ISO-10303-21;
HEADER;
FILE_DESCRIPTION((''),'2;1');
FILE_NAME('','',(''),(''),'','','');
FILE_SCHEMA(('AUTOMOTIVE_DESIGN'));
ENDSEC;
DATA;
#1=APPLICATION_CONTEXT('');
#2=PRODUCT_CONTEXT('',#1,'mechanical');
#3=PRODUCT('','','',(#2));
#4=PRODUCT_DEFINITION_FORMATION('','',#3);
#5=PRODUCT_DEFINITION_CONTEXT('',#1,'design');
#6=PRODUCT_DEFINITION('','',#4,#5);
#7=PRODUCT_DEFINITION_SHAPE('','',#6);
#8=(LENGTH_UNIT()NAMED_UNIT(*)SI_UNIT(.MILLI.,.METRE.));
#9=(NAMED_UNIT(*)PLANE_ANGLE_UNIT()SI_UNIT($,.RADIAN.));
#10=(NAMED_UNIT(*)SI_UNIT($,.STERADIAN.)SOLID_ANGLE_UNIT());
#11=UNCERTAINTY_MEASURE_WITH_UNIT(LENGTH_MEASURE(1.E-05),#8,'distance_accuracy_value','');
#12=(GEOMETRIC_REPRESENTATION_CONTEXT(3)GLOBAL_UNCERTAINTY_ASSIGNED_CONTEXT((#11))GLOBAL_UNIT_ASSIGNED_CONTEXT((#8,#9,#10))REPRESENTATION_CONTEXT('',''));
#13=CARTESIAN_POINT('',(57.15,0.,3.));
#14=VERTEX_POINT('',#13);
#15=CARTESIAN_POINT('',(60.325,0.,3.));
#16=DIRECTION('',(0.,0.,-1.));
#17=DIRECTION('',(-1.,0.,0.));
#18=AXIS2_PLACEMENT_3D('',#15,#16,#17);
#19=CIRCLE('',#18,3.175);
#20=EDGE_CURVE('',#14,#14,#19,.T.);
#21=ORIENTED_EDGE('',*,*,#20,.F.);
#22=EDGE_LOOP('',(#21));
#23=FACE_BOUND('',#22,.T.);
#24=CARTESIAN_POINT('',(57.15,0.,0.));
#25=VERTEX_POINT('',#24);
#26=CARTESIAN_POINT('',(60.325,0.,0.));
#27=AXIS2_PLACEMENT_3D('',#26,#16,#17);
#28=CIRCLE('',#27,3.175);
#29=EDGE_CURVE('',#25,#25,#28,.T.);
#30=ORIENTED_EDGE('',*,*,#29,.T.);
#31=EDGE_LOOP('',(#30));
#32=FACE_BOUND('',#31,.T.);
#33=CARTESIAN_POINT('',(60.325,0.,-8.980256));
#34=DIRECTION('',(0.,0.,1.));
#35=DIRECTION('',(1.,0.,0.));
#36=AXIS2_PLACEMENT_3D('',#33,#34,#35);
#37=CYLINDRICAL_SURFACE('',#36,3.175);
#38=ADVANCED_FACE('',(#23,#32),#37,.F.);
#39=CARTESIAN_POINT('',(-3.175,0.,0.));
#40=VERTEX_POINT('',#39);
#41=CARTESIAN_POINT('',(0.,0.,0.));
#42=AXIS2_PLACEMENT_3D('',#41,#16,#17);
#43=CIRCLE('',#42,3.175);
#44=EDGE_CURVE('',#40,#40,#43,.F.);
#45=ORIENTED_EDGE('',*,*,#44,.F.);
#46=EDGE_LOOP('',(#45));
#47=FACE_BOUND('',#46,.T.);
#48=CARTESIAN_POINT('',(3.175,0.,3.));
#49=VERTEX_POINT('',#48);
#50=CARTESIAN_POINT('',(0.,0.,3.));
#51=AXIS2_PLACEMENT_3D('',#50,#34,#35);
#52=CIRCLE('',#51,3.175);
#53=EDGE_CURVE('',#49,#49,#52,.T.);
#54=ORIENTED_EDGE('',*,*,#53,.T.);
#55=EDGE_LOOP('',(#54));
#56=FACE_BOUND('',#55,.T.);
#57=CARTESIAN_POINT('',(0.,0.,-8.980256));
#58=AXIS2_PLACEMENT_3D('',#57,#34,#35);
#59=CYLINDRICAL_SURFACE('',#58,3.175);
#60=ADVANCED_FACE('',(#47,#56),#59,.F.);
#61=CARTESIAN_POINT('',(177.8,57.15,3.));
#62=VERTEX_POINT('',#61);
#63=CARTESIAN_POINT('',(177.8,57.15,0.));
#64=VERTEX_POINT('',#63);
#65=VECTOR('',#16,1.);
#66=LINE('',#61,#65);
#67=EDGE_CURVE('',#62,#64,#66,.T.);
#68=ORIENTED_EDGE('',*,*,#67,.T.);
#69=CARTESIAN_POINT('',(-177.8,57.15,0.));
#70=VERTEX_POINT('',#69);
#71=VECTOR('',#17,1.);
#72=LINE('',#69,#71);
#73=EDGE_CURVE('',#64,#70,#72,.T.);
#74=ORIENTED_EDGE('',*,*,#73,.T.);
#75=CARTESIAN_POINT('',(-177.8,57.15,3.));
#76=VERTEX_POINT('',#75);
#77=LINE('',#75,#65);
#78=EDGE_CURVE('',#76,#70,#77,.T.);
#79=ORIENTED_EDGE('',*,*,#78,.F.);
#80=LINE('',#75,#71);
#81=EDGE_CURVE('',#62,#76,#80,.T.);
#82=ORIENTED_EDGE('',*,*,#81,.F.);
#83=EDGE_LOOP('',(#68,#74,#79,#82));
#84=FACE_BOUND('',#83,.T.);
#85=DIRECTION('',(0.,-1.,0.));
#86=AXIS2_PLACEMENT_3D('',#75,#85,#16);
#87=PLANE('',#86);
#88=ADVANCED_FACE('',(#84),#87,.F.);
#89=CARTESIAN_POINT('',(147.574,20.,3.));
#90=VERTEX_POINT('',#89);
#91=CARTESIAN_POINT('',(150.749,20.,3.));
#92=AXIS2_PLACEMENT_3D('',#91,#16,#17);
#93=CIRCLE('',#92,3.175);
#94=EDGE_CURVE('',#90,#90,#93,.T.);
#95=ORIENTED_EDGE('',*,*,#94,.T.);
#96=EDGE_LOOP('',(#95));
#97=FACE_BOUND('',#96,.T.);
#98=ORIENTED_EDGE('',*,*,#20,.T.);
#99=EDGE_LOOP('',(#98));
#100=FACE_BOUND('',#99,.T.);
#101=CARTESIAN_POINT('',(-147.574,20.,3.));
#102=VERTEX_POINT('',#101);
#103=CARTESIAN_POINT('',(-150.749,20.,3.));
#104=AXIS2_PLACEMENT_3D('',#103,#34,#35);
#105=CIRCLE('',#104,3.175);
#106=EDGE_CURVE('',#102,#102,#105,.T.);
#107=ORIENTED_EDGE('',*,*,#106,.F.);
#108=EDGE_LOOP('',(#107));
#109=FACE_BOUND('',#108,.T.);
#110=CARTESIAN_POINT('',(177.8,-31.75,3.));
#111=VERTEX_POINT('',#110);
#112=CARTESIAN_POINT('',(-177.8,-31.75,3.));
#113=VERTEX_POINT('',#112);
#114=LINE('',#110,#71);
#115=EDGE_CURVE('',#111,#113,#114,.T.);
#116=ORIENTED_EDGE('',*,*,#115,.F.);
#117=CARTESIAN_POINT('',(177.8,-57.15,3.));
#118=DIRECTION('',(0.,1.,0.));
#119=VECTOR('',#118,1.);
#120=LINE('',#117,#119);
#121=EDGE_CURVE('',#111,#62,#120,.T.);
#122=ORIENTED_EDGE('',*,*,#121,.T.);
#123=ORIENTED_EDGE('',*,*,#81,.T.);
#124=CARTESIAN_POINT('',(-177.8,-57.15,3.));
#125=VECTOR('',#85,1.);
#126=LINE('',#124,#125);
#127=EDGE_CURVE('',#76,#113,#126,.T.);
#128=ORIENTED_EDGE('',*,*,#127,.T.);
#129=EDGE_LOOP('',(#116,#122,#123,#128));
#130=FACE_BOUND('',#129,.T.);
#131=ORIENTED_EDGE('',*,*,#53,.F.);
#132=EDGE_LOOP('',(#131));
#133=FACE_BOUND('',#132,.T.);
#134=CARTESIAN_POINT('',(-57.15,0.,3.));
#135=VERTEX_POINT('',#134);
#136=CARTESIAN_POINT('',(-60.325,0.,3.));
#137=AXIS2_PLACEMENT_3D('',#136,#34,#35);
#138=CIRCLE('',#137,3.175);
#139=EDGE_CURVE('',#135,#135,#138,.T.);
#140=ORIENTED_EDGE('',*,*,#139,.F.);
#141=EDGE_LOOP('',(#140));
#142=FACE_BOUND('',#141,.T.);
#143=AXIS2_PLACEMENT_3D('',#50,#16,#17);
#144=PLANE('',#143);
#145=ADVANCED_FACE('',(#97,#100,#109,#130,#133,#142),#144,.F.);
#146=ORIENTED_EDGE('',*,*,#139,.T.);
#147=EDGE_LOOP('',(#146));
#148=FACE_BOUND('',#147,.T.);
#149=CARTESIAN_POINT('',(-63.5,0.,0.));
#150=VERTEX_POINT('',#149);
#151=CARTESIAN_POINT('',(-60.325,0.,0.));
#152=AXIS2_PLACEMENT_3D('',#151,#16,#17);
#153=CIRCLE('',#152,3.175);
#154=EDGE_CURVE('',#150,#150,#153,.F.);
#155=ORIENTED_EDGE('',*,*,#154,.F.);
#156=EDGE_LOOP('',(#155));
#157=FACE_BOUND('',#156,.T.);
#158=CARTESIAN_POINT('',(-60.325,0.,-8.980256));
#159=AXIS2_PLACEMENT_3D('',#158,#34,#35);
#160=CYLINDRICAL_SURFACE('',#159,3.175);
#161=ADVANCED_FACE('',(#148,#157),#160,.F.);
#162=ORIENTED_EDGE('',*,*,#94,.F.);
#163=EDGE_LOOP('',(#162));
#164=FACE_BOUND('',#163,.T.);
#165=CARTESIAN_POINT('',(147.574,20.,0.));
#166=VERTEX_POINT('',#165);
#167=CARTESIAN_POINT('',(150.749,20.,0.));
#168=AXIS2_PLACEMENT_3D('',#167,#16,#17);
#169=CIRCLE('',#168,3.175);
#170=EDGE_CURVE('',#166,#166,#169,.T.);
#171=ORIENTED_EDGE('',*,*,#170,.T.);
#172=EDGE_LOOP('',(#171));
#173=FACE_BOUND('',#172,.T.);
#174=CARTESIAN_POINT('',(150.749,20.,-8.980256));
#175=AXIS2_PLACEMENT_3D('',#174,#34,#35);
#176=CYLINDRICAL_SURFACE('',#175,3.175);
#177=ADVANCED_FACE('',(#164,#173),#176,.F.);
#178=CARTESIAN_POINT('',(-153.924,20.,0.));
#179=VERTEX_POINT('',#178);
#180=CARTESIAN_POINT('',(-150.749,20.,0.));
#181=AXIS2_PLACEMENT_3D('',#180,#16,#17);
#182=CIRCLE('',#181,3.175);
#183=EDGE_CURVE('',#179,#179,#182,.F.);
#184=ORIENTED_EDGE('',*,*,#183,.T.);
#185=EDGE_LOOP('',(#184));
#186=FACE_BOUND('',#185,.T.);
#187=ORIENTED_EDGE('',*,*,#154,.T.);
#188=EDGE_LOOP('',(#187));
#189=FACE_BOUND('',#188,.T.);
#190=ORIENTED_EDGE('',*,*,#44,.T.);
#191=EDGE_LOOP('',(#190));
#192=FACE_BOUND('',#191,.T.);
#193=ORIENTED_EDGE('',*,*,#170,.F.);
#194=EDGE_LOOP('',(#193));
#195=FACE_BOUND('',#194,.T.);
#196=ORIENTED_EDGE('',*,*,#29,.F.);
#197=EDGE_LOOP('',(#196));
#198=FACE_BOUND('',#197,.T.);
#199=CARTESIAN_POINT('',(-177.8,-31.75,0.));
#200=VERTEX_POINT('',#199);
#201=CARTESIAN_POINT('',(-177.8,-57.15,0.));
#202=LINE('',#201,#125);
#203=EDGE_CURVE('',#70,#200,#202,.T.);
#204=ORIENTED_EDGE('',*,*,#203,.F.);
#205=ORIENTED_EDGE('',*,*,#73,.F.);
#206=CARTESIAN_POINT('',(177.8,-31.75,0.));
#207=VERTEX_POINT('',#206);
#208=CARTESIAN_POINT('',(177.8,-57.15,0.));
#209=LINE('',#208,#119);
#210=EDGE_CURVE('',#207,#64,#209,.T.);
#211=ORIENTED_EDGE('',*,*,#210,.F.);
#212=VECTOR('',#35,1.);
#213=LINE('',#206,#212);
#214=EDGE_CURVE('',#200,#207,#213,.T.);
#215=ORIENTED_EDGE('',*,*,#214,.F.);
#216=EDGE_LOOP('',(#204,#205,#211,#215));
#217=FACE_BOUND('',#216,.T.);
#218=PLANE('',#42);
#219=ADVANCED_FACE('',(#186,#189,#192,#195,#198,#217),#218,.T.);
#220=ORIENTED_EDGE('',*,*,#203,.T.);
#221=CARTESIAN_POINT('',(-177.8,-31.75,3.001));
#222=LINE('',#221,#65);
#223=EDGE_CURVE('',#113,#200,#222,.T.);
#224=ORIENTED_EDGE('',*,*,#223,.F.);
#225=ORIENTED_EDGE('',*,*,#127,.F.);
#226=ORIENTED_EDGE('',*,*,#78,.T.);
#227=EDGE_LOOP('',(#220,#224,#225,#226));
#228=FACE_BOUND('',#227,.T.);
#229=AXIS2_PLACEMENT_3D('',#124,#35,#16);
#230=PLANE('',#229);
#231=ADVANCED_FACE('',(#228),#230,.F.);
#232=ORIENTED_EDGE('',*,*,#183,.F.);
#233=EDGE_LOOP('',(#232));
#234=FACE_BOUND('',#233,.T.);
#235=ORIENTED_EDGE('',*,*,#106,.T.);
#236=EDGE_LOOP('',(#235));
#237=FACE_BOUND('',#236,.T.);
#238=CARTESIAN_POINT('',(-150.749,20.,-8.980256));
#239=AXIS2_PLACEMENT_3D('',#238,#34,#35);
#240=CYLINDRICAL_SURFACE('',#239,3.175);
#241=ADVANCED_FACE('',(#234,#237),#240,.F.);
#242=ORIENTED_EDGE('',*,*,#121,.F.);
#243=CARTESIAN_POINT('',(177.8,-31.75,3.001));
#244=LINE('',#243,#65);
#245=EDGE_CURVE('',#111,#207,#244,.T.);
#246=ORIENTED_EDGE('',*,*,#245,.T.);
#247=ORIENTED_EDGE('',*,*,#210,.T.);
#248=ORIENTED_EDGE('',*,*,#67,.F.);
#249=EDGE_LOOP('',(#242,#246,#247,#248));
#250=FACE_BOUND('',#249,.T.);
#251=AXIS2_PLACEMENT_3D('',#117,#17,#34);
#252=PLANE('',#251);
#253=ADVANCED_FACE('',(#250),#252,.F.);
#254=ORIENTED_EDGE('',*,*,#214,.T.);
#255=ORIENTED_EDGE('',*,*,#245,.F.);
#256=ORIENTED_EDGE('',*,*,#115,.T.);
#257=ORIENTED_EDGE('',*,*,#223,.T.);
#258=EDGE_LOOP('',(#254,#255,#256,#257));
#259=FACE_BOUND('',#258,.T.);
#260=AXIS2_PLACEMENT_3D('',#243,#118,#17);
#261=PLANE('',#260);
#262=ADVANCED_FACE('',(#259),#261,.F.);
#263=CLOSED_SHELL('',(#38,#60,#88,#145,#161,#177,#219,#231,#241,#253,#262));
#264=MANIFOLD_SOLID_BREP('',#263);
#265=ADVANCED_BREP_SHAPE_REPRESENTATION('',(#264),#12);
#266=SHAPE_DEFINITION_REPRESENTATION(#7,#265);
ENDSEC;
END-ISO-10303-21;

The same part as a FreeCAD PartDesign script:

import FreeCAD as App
import Part
import Sketcher
from FreeCAD import Vector
Q = App.Units.Quantity

doc = App.newDocument("Part")
body = doc.addObject("PartDesign::Body", "Body")

# Sketch on XY plane
sketch1 = body.newObject("Sketcher::SketchObject", "Sketch")
sketch1.AttachmentSupport = (doc.getObject("XY_Plane"), [""])
sketch1.MapMode = "FlatFace"
sketch1.addGeometry(Part.LineSegment(Vector(-177.8, 57.15, 0), Vector(-177.8, -57.15, 0)), False)
sketch1.addGeometry(Part.LineSegment(Vector(-177.8, -57.15, 0), Vector(177.8, -57.15, 0)), False)
sketch1.addGeometry(Part.LineSegment(Vector(177.8, -57.15, 0), Vector(177.8, 57.15, 0)), False)
sketch1.addGeometry(Part.LineSegment(Vector(177.8, 57.15, 0), Vector(-177.8, 57.15, 0)), False)
sketch1.addConstraint(Sketcher.Constraint("Coincident", 0, 2, 1, 1))
sketch1.addConstraint(Sketcher.Constraint("Coincident", 1, 2, 2, 1))
sketch1.addConstraint(Sketcher.Constraint("Coincident", 2, 2, 3, 1))
sketch1.addConstraint(Sketcher.Constraint("Coincident", 3, 2, 0, 1))
sketch1.addConstraint(Sketcher.Constraint("Vertical", 0))
sketch1.addConstraint(Sketcher.Constraint("Horizontal", 1))
sketch1.addConstraint(Sketcher.Constraint("Vertical", 2))
sketch1.addConstraint(Sketcher.Constraint("Horizontal", 3))
sketch1.addConstraint(Sketcher.Constraint("Symmetric", 0, 2, 2, 2, -1, 1))
sketch1.addConstraint(Sketcher.Constraint("DistanceX", 1, 1, 1, 2, Q("14 in")))
sketch1.addConstraint(Sketcher.Constraint("DistanceY", 0, 2, 0, 1, Q("4.5 in")))
pad1 = body.newObject("PartDesign::Pad", "Pad")
pad1.Profile = sketch1
pad1.Length = 3

# Sketch on XY plane
sketch2 = body.newObject("Sketcher::SketchObject", "Sketch001")
sketch2.AttachmentSupport = (doc.getObject("XY_Plane"), [""])
sketch2.MapMode = "FlatFace"
sketch2.AttachmentOffset = App.Placement(Vector(0, 0, 3), App.Rotation())
sketch2.addGeometry(Part.Circle(Vector(-60.325, 0, 0), Vector(0, 0, 1), 3.175), False)
sketch2.addGeometry(Part.Circle(Vector(0, 0, 0), Vector(0, 0, 1), 3.175), False)
sketch2.addGeometry(Part.Circle(Vector(-150.749, 20, 0), Vector(0, 0, 1), 3.175), False)
sketch2.addConstraint(Sketcher.Constraint("Coincident", 1, 3, -1, 1))
sketch2.addConstraint(Sketcher.Constraint("Equal", 0, 1))
sketch2.addConstraint(Sketcher.Constraint("Equal", 1, 2))
sketch2.addConstraint(Sketcher.Constraint("PointOnObject", 0, 3, -1))
sketch2.addConstraint(Sketcher.Constraint("Diameter", 0, Q("0.25 in")))
sketch2.addConstraint(Sketcher.Constraint("DistanceX", 2, 3, 0, 3, Q("3.56 in")))
sketch2.addConstraint(Sketcher.Constraint("DistanceX", 0, 3, -1, 1, Q("2.375 in")))
sketch2.addConstraint(Sketcher.Constraint("DistanceY", -1, 1, 2, 3, 20.0))
pocket1 = body.newObject("PartDesign::Pocket", "Pocket")
pocket1.Profile = sketch2
pocket1.Length = 3
doc.recompute()

mirrored = body.newObject("PartDesign::Mirrored", "Mirrored")
mirrored.Originals = [pocket1]
mirrored.MirrorPlane = (doc.getObject("YZ_Plane"), [""])
body.Tip = mirrored

# Sketch on XY plane
sketch3 = body.newObject("Sketcher::SketchObject", "Sketch002")
sketch3.AttachmentSupport = (doc.getObject("XY_Plane"), [""])
sketch3.MapMode = "FlatFace"
sketch3.addGeometry(Part.LineSegment(Vector(177.8, -31.75, 0), Vector(177.8, -57.15, 0)), False)
sketch3.addGeometry(Part.LineSegment(Vector(177.8, -57.15, 0), Vector(-177.8, -57.15, 0)), False)
sketch3.addGeometry(Part.LineSegment(Vector(-177.8, -57.15, 0), Vector(-177.8, -31.75, 0)), False)
sketch3.addGeometry(Part.LineSegment(Vector(-177.8, -31.75, 0), Vector(177.8, -31.75, 0)), False)
sketch3.addConstraint(Sketcher.Constraint("Coincident", 0, 2, 1, 1))
sketch3.addConstraint(Sketcher.Constraint("Coincident", 1, 2, 2, 1))
sketch3.addConstraint(Sketcher.Constraint("Coincident", 2, 2, 3, 1))
sketch3.addConstraint(Sketcher.Constraint("Coincident", 3, 2, 0, 1))
sketch3.addConstraint(Sketcher.Constraint("Vertical", 0))
sketch3.addConstraint(Sketcher.Constraint("Horizontal", 1))
sketch3.addConstraint(Sketcher.Constraint("Vertical", 2))
sketch3.addConstraint(Sketcher.Constraint("Horizontal", 3))
sketch3.addConstraint(Sketcher.Constraint("DistanceX", 1, 2, 1, 1, Q("14 in")))
sketch3.addConstraint(Sketcher.Constraint("DistanceY", 0, 2, 0, 1, Q("1 in")))
sketch3.addConstraint(Sketcher.Constraint("DistanceX", -1, 1, 0, 2, Q("7 in")))
sketch3.addConstraint(Sketcher.Constraint("DistanceY", 0, 2, -1, 1, Q("2.25 in")))
pocket2 = body.newObject("PartDesign::Pocket", "Pocket001")
pocket2.Profile = sketch3
pocket2.Type = "UpToFirst"
pocket2.Reversed = True

doc.recompute()
